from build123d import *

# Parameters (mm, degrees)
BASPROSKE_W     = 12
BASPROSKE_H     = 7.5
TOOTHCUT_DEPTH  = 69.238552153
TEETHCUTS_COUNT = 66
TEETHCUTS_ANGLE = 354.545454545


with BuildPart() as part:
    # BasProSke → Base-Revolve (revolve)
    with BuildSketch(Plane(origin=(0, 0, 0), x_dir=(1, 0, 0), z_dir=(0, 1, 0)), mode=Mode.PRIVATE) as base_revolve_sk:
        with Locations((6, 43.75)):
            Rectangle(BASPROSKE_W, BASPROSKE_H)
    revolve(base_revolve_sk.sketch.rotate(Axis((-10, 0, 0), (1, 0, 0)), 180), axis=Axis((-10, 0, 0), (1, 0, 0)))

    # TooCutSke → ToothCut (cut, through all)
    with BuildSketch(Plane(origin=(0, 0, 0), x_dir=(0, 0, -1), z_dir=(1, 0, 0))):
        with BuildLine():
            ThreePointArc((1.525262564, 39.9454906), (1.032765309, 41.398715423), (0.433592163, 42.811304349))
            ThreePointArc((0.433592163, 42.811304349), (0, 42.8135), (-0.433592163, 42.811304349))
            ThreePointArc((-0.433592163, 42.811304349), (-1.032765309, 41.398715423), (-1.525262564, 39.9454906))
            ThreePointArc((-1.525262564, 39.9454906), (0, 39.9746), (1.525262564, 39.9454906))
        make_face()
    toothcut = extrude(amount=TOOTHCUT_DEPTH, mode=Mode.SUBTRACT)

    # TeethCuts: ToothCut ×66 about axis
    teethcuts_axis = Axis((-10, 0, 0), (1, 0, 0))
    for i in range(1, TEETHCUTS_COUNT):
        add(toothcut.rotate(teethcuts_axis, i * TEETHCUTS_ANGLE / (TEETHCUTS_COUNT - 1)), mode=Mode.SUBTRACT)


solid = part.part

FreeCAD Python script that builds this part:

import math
import FreeCAD as App
import Part
import Sketcher
from FreeCAD import Vector

doc = App.newDocument("Part")
body = doc.addObject("PartDesign::Body", "Body")

# Sketch on XZ plane
sketch1 = doc.addObject("Sketcher::SketchObject", "Sketch")
body.addObject(sketch1)
sketch1.AttachmentSupport = (doc.XZ_Plane, [""])
sketch1.MapMode = "FlatFace"
sketch1.addGeometry(Part.LineSegment(Vector(0, -48, 0), Vector(0, -40, 0)), False)
sketch1.addGeometry(Part.LineSegment(Vector(0, -40, 0), Vector(12, -40, 0)), False)
sketch1.addGeometry(Part.LineSegment(Vector(12, -40, 0), Vector(12, -48, 0)), False)
sketch1.addGeometry(Part.LineSegment(Vector(12, -48, 0), Vector(0, -48, 0)), False)
sketch1.addConstraint(Sketcher.Constraint("Coincident", 0, 2, 1, 1))
sketch1.addConstraint(Sketcher.Constraint("Coincident", 1, 2, 2, 1))
sketch1.addConstraint(Sketcher.Constraint("Coincident", 2, 2, 3, 1))
sketch1.addConstraint(Sketcher.Constraint("Coincident", 3, 2, 0, 1))
sketch1.addConstraint(Sketcher.Constraint("Vertical", 0))
sketch1.addConstraint(Sketcher.Constraint("Horizontal", 1))
sketch1.addConstraint(Sketcher.Constraint("Vertical", 2))
sketch1.addConstraint(Sketcher.Constraint("Horizontal", 3))
sketch1.addConstraint(Sketcher.Constraint("PointOnObject", 0, 2, -2))
sketch1.addConstraint(Sketcher.Constraint("DistanceX", 1, 1, 1, 2, 12.0))
sketch1.addConstraint(Sketcher.Constraint("DistanceY", 0, 1, 0, 2, 7.5))
sketch1.addConstraint(Sketcher.Constraint("DistanceY", 0, 2, -1, 1, 40.0))
revolution = doc.addObject("PartDesign::Revolution", "Revolution")
body.addObject(revolution)
revolution.Profile = sketch1
revolution.ReferenceAxis = (sketch1, ["H_Axis"])
revolution.Angle = 360

# Sketch on YZ plane
sketch2 = doc.addObject("Sketcher::SketchObject", "Sketch001")
body.addObject(sketch2)
sketch2.AttachmentSupport = (doc.YZ_Plane, [""])
sketch2.MapMode = "FlatFace"
sketch2.addGeometry(Part.ArcOfCircle(Part.Circle(Vector(34.056712, 18.241196, 0), Vector(0, 0, 1), 20.625), math.radians(-73.410274), math.radians(-64.883191)), False)
sketch2.addGeometry(Part.ArcOfCircle(Part.Circle(Vector(0.000005, 0, 0), Vector(0, 0, 1), 42.813495), math.radians(-0.580271), math.radians(0.580271)), False)
sketch2.addGeometry(Part.ArcOfCircle(Part.Circle(Vector(34.056712, -18.241196, 0), Vector(0, 0, 1), 20.625), math.radians(64.883191), math.radians(73.410274)), False)
sketch2.addGeometry(Part.ArcOfCircle(Part.Circle(Vector(0, 0, 0), Vector(0, 0, 1), 39.9746), math.radians(-2.186697), math.radians(2.186697)), False)
sketch2.addConstraint(Sketcher.Constraint("Coincident", 0, 2, 1, 1))
sketch2.addConstraint(Sketcher.Constraint("Coincident", 1, 2, 2, 1))
sketch2.addConstraint(Sketcher.Constraint("Coincident", 2, 2, 3, 2))
sketch2.addConstraint(Sketcher.Constraint("Coincident", 3, 1, 0, 1))
sketch2.addConstraint(Sketcher.Constraint("Coincident", 1, 3, -1, 1))
sketch2.addConstraint(Sketcher.Constraint("Coincident", 3, 3, -1, 1))
sketch2.addConstraint(Sketcher.Constraint("Radius", 0, 20.625))
sketch2.addConstraint(Sketcher.Constraint("Radius", 2, 20.625))
sketch2.addConstraint(Sketcher.Constraint("Radius", 3, 39.9746))
sketch2.addConstraint(Sketcher.Constraint("Radius", 1, 42.813495))
sketch2.addConstraint(Sketcher.Constraint("DistanceX", 1, 3, 1, 2, 42.811299))
sketch2.addConstraint(Sketcher.Constraint("DistanceX", -1, 1, 3, 1, 39.945491))
sketch2.addConstraint(Sketcher.Constraint("DistanceY", 0, 2, 0, 3, 18.674789))
sketch2.addConstraint(Sketcher.Constraint("DistanceY", 2, 3, 1, 2, 18.674789))
pocket1 = doc.addObject("PartDesign::Pocket", "Pocket")
body.addObject(pocket1)
pocket1.Profile = sketch2
pocket1.Type = "ThroughAll"
pocket1.Reversed = True
doc.recompute()

polarpattern = doc.addObject("PartDesign::PolarPattern", "PolarPattern")
body.addObject(polarpattern)
polarpattern.Originals = [pocket1]
polarpattern.Axis = (doc.X_Axis, [""])
polarpattern.Angle = 360
polarpattern.Occurrences = 66
body.Tip = polarpattern

doc.recompute()
